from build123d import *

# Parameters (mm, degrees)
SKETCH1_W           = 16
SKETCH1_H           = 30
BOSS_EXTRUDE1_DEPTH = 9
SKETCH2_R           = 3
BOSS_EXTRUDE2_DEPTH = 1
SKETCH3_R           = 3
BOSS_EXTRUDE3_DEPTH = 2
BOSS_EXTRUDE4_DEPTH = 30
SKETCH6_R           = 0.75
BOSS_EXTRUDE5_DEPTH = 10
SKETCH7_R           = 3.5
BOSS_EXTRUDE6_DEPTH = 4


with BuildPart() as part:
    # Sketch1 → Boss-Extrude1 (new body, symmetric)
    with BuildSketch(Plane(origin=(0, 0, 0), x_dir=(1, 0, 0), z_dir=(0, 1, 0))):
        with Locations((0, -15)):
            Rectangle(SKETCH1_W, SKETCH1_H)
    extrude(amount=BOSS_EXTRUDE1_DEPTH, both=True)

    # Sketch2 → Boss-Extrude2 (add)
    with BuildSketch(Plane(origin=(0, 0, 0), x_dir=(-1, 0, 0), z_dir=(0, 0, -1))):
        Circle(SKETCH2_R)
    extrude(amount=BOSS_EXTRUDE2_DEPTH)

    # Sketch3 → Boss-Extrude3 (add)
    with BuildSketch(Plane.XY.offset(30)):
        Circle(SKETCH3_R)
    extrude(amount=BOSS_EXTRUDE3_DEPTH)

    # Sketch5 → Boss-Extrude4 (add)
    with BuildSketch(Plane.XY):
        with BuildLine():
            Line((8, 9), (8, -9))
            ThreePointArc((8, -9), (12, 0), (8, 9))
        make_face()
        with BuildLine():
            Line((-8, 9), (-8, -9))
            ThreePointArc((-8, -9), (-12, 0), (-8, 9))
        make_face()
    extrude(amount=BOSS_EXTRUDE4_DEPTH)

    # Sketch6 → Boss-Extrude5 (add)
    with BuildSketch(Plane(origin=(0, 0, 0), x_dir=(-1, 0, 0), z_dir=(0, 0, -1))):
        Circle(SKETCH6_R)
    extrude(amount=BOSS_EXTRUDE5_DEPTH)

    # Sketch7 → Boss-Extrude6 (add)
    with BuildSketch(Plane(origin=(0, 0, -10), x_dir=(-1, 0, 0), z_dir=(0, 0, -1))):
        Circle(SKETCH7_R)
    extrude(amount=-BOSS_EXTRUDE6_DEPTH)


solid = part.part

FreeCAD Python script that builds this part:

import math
import FreeCAD as App
import Part
import Sketcher

V = App.Vector
Q = App.Units.Quantity


def add_polygon(sketch, points):
    """Adds a closed chain of lines whose ends are joined by coincident constraints."""
    first, n = sketch.GeometryCount, len(points)
    for a, b in zip(points, points[1:] + points[:1]):
        sketch.addGeometry(Part.LineSegment(App.Vector(*a, 0), App.Vector(*b, 0)), False)
    for i in range(n):
        sketch.addConstraint(Sketcher.Constraint("Coincident", first + i, 2, first + (i + 1) % n, 1))

doc = App.newDocument("Part")
params = doc.addObject("Spreadsheet::Sheet", "Params")
for row, (alias, value) in enumerate([
    ("sketch1_width", "16 mm"),
    ("sketch1_height", "30 mm"),
    ("pad1_length", "18 mm"),
    ("sketch2_diameter", "6 mm"),
    ("pad2_length", "1 mm"),
    ("sketch3_diameter", "6 mm"),
    ("pad3_length", "2 mm"),
    ("sketch4_height", "18 mm"),
    ("pad4_length", "30 mm"),
    ("sketch5_diameter", "1.5 mm"),
    ("pad5_length", "10 mm"),
    ("sketch6_diameter", "7 mm"),
    ("pad6_length", "4 mm"),
], start=1):
    params.set(f"A{row}", alias)
    params.set(f"B{row}", "=" + value)
    params.setAlias(f"B{row}", alias)

body = doc.addObject("PartDesign::Body", "Body")

sketch1 = doc.addObject("Sketcher::SketchObject", "Sketch")
body.addObject(sketch1)
sketch1.AttachmentSupport = (doc.XZ_Plane, [""])
sketch1.MapMode = "FlatFace"
add_polygon(sketch1, [(-8, 0), (-8, 30), (8, 30), (8, 0)])
sketch1.addConstraint([
    Sketcher.Constraint("Vertical", 0),
    Sketcher.Constraint("Horizontal", 1),
    Sketcher.Constraint("Vertical", 2),
    Sketcher.Constraint("Horizontal", 3),
    Sketcher.Constraint("Symmetric", 2, 2, 3, 2, -1, 1),
    Sketcher.Constraint("DistanceX", 1, 1, 1, 2, Q("16 mm")),
    Sketcher.Constraint("DistanceY", 0, 1, 0, 2, Q("30 mm")),
])
sketch1.setExpression("Constraints[9]", "Params.sketch1_width")
sketch1.setExpression("Constraints[10]", "Params.sketch1_height")
pad1 = doc.addObject("PartDesign::Pad", "Pad")
body.addObject(pad1)
pad1.Profile = sketch1
pad1.setExpression("Length", "Params.pad1_length")
pad1.Midplane = True

sketch2 = doc.addObject("Sketcher::SketchObject", "Sketch001")
body.addObject(sketch2)
sketch2.AttachmentSupport = (doc.XY_Plane, [""])
sketch2.MapMode = "FlatFace"
sketch2.addGeometry(Part.Circle(V(0, 0, 0), V(0, 0, 1), 3), False)
sketch2.addConstraint([
    Sketcher.Constraint("Coincident", 0, 3, -1, 1),
    Sketcher.Constraint("Diameter", 0, Q("6 mm")),
])
sketch2.setExpression("Constraints[1]", "Params.sketch2_diameter")
pad2 = doc.addObject("PartDesign::Pad", "Pad001")
body.addObject(pad2)
pad2.Profile = sketch2
pad2.setExpression("Length", "Params.pad2_length")
pad2.Reversed = True

sketch3 = doc.addObject("Sketcher::SketchObject", "Sketch002")
body.addObject(sketch3)
sketch3.AttachmentSupport = (doc.XY_Plane, [""])
sketch3.MapMode = "FlatFace"
sketch3.AttachmentOffset = App.Placement(V(0, 0, 30), App.Rotation())
sketch3.addGeometry(Part.Circle(V(0, 0, 0), V(0, 0, 1), 3), False)
sketch3.addConstraint([
    Sketcher.Constraint("Coincident", 0, 3, -1, 1),
    Sketcher.Constraint("Diameter", 0, Q("6 mm")),
])
sketch3.setExpression("Constraints[1]", "Params.sketch3_diameter")
pad3 = doc.addObject("PartDesign::Pad", "Pad002")
body.addObject(pad3)
pad3.Profile = sketch3
pad3.setExpression("Length", "Params.pad3_length")

sketch4 = doc.addObject("Sketcher::SketchObject", "Sketch003")
body.addObject(sketch4)
sketch4.AttachmentSupport = (doc.XY_Plane, [""])
sketch4.MapMode = "FlatFace"
sketch4.addGeometry([
    Part.LineSegment(V(8, 9, 0), V(8, -9, 0)),
    Part.ArcOfCircle(Part.Circle(V(-0.125, 0, 0), V(0, 0, 1), 12.125), math.radians(-47.924978), math.radians(47.924978)),
    Part.LineSegment(V(-8, -9, 0), V(-8, 9, 0)),
    Part.ArcOfCircle(Part.Circle(V(0.125, 0, 0), V(0, 0, 1), 12.125), math.radians(132.075022), math.radians(227.924978)),
], False)
sketch4.addConstraint([
    Sketcher.Constraint("Coincident", 0, 1, 1, 2),
    Sketcher.Constraint("Coincident", 1, 1, 0, 2),
    Sketcher.Constraint("Coincident", 2, 1, 3, 2),
    Sketcher.Constraint("Coincident", 3, 1, 2, 2),
    Sketcher.Constraint("Vertical", 0),
    Sketcher.Constraint("Vertical", 2),
    Sketcher.Constraint("Equal", 1, 3),
    Sketcher.Constraint("Symmetric", 1, 3, 3, 3, -1, 1),
    Sketcher.Constraint("Symmetric", 1, 1, 2, 1, -2),
    Sketcher.Constraint("DistanceY", 0, 2, 0, 1, Q("18 mm")),
    Sketcher.Constraint("DistanceX", -1, 1, 0, 1, Q("8 mm")),
    Sketcher.Constraint("Radius", 1, Q("12.125 mm")),
])
sketch4.setExpression("Constraints[9]", "Params.sketch4_height")
pad4 = doc.addObject("PartDesign::Pad", "Pad003")
body.addObject(pad4)
pad4.Profile = sketch4
pad4.setExpression("Length", "Params.pad4_length")

sketch5 = doc.addObject("Sketcher::SketchObject", "Sketch004")
body.addObject(sketch5)
sketch5.AttachmentSupport = (doc.XY_Plane, [""])
sketch5.MapMode = "FlatFace"
sketch5.addGeometry(Part.Circle(V(0, 0, 0), V(0, 0, 1), 0.8), False)
sketch5.addConstraint([
    Sketcher.Constraint("Coincident", 0, 3, -1, 1),
    Sketcher.Constraint("Diameter", 0, Q("1.5 mm")),
])
sketch5.setExpression("Constraints[1]", "Params.sketch5_diameter")
pad5 = doc.addObject("PartDesign::Pad", "Pad004")
body.addObject(pad5)
pad5.Profile = sketch5
pad5.setExpression("Length", "Params.pad5_length")
pad5.Reversed = True

sketch6 = doc.addObject("Sketcher::SketchObject", "Sketch005")
body.addObject(sketch6)
sketch6.AttachmentSupport = (doc.XY_Plane, [""])
sketch6.MapMode = "FlatFace"
sketch6.AttachmentOffset = App.Placement(V(0, 0, -10), App.Rotation())
sketch6.addGeometry(Part.Circle(V(0, 0, 0), V(0, 0, 1), 3.5), False)
sketch6.addConstraint([
    Sketcher.Constraint("Coincident", 0, 3, -1, 1),
    Sketcher.Constraint("Diameter", 0, Q("7 mm")),
])
sketch6.setExpression("Constraints[1]", "Params.sketch6_diameter")
pad6 = doc.addObject("PartDesign::Pad", "Pad005")
body.addObject(pad6)
pad6.Profile = sketch6
pad6.setExpression("Length", "Params.pad6_length")

doc.recompute()
